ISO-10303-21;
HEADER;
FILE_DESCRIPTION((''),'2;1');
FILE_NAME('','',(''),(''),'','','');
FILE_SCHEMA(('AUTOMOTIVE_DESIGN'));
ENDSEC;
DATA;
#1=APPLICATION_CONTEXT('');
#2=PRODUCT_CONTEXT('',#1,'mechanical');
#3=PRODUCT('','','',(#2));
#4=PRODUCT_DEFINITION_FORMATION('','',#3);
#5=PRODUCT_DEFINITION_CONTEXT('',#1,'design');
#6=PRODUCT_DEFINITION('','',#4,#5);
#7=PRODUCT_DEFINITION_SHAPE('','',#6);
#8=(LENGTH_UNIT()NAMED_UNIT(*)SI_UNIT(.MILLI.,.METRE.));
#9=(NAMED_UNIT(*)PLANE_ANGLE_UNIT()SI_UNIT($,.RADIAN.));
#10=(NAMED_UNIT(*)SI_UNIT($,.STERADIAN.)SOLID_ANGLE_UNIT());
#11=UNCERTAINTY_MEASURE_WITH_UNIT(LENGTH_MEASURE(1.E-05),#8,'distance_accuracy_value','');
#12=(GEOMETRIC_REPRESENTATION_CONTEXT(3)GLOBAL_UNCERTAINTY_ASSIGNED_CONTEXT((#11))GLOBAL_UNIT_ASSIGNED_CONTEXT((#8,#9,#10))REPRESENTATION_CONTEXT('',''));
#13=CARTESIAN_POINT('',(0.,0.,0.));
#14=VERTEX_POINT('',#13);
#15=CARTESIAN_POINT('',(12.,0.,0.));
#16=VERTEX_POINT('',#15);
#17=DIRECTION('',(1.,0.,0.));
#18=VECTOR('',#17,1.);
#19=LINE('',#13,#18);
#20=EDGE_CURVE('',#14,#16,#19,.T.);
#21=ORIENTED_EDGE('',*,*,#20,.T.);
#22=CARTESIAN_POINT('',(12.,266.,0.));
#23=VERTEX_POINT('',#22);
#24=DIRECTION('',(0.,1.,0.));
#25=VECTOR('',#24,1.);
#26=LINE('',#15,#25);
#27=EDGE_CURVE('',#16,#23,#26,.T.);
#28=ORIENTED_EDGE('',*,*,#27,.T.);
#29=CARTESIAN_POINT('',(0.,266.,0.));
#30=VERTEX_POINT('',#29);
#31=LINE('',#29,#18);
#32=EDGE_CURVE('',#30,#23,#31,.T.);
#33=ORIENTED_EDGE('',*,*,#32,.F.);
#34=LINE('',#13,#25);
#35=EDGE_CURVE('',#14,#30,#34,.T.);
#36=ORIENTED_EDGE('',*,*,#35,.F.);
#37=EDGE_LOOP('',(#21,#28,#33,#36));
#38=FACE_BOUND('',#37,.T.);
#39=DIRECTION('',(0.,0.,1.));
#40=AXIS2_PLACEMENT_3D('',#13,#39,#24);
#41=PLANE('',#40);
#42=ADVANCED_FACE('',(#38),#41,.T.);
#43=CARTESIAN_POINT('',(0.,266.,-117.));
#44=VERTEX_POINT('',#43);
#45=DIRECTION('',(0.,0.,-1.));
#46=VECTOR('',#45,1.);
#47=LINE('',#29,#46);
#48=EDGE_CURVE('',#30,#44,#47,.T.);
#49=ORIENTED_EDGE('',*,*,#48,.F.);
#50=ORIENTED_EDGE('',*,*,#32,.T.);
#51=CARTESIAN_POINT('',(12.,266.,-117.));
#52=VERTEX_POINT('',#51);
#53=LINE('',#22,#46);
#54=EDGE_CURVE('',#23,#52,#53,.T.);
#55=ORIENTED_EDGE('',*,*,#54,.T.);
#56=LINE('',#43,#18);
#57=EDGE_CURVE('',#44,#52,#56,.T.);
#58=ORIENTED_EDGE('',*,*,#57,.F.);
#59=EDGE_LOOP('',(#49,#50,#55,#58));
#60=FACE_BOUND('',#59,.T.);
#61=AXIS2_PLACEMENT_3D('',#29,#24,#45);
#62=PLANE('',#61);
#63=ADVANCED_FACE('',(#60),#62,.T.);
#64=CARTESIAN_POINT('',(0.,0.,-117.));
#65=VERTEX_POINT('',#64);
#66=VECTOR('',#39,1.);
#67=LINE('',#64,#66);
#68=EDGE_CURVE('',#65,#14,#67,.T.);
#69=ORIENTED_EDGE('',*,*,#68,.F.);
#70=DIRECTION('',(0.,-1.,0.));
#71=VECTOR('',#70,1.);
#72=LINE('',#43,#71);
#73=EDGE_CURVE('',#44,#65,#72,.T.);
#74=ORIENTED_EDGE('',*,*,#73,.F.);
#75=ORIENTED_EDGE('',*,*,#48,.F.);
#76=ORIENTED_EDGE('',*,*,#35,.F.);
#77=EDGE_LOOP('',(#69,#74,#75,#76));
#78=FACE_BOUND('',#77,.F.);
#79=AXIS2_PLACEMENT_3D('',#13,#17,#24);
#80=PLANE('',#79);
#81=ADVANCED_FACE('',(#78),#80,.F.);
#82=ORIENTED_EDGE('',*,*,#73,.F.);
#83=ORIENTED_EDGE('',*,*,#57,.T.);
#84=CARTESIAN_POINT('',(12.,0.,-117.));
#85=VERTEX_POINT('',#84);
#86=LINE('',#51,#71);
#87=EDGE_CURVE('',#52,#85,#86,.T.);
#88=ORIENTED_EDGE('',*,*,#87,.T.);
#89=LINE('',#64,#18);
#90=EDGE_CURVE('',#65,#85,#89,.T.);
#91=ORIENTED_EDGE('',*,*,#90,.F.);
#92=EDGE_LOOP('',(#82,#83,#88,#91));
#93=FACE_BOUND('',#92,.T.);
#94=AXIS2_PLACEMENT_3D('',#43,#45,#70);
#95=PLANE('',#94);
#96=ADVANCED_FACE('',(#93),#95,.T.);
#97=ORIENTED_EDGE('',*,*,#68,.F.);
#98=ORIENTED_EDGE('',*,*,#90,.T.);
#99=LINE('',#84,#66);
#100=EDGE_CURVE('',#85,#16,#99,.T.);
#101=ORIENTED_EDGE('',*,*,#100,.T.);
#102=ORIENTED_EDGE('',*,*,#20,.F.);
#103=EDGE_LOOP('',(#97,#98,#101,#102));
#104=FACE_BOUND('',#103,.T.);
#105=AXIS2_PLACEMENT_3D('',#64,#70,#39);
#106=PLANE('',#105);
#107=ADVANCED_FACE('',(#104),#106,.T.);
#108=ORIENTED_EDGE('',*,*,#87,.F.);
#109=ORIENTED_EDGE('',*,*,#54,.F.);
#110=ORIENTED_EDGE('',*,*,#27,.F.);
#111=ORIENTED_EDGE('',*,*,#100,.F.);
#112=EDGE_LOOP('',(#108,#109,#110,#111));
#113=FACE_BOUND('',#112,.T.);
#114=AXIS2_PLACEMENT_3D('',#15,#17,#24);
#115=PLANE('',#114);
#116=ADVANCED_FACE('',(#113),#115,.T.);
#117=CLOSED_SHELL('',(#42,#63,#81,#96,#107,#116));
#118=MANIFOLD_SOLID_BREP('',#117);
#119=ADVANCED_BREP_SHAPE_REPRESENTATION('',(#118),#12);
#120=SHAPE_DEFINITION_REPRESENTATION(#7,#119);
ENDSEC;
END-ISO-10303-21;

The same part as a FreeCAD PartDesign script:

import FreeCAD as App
import Part
import Sketcher
Q = App.Units.Quantity


def add_polygon(sketch, points):
    """Adds a closed chain of lines whose ends are joined by coincident constraints."""
    first, n = sketch.GeometryCount, len(points)
    for a, b in zip(points, points[1:] + points[:1]):
        sketch.addGeometry(Part.LineSegment(App.Vector(*a, 0), App.Vector(*b, 0)), False)
    for i in range(n):
        sketch.addConstraint(Sketcher.Constraint("Coincident", first + i, 2, first + (i + 1) % n, 1))

doc = App.newDocument("Part")
body = doc.addObject("PartDesign::Body", "Body")

# Sketch on YZ plane
sketch1 = doc.addObject("Sketcher::SketchObject", "Sketch")
body.addObject(sketch1)
sketch1.AttachmentSupport = (doc.YZ_Plane, [""])
sketch1.MapMode = "FlatFace"
add_polygon(sketch1, [(266, 0), (0, 0), (0, -117), (266, -117)])  # lines 0-3
sketch1.addConstraint([
    Sketcher.Constraint("Horizontal", 0),
    Sketcher.Constraint("Vertical", 1),
    Sketcher.Constraint("Horizontal", 2),
    Sketcher.Constraint("Vertical", 3),
    Sketcher.Constraint("Coincident", 0, 2, -1, 1),
    Sketcher.Constraint("DistanceX", 0, 2, 0, 1, Q("266 mm")),
    Sketcher.Constraint("DistanceY", 1, 2, 1, 1, Q("117 mm")),
])
pad1 = doc.addObject("PartDesign::Pad", "Pad")
body.addObject(pad1)
pad1.Profile = sketch1
pad1.Length = 12

doc.recompute()
